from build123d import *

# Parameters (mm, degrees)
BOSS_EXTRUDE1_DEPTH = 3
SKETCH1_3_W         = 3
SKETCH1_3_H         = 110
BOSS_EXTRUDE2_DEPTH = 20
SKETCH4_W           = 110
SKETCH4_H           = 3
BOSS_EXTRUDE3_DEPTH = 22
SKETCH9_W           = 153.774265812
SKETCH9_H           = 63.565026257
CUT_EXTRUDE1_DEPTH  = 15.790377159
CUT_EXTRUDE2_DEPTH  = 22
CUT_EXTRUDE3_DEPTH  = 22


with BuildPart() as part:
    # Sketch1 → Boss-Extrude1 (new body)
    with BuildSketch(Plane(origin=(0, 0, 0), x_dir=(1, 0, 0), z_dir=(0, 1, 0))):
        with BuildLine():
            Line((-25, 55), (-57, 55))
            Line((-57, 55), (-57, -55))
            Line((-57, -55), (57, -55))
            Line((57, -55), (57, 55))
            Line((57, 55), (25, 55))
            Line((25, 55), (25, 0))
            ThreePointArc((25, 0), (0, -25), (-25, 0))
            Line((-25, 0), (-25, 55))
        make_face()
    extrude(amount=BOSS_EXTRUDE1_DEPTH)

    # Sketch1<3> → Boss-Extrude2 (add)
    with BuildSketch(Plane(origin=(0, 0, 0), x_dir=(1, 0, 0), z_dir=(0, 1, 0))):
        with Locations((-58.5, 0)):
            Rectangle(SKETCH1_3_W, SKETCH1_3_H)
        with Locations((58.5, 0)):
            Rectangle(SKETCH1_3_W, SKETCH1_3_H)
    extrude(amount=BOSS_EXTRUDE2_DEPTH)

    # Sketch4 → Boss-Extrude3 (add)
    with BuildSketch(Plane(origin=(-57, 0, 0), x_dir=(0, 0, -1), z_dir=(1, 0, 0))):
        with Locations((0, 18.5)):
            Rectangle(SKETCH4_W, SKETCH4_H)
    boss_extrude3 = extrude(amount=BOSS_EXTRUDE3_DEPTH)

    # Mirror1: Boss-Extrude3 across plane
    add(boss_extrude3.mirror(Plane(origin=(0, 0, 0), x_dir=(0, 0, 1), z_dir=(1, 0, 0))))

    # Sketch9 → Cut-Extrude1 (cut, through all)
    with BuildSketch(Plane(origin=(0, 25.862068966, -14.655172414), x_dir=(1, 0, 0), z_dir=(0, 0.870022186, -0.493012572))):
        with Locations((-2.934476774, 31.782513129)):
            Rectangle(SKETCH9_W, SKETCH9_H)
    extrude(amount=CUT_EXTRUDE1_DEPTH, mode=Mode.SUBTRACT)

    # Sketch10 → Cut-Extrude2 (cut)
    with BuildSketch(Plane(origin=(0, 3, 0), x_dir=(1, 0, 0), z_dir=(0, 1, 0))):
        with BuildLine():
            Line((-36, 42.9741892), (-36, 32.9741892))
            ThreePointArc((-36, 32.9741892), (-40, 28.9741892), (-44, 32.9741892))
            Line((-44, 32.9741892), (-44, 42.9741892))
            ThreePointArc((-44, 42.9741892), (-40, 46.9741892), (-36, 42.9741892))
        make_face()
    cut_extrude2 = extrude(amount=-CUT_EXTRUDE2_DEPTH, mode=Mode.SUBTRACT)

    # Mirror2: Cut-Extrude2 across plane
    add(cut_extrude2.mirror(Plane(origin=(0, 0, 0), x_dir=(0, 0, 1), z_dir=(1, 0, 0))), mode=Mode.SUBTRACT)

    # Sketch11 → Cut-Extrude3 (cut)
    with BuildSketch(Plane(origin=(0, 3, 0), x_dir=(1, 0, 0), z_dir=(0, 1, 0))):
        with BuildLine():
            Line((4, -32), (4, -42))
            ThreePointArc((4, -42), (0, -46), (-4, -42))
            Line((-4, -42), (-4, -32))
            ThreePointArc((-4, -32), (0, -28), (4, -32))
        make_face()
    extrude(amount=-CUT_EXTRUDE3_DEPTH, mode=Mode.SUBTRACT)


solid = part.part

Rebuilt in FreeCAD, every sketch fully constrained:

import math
import FreeCAD as App
import Part
import Sketcher

V = App.Vector

doc = App.newDocument("Part")
params = doc.addObject("Spreadsheet::Sheet", "Params")
for row, (alias, value) in enumerate([
    ("sketch1_radius", "25 mm"),
    ("sketch1_width", "32 mm"),
    ("sketch1_height", "110 mm"),
    ("pad1_length", "3 mm"),
    ("sketch2_width", "3 mm"),
    ("sketch2_height", "110 mm"),
    ("pad2_length", "20 mm"),
    ("sketch3_width", "3 mm"),
    ("sketch3_height", "110 mm"),
    ("pad3_length", "22 mm"),
    ("sketch5_radius", "4 mm"),
    ("sketch5_height", "10 mm"),
    ("pocket2_length", "22 mm"),
    ("sketch6_radius", "4 mm"),
    ("sketch6_height", "10 mm"),
    ("pocket3_length", "22 mm"),
], start=1):
    params.set(f"A{row}", alias)
    params.set(f"B{row}", "=" + value)
    params.setAlias(f"B{row}", alias)

body = doc.addObject("PartDesign::Body", "Body")

# Sketch on XZ plane
sketch1 = body.newObject("Sketcher::SketchObject", "Sketch")
sketch1.AttachmentSupport = (doc.getObject("XZ_Plane"), [""])
sketch1.MapMode = "FlatFace"
sketch1.addGeometry([
    Part.LineSegment(V(-25, -55, 0), V(-57, -55, 0)),  # 0
    Part.LineSegment(V(-57, -55, 0), V(-57, 55, 0)),  # 1
    Part.LineSegment(V(-57, 55, 0), V(57, 55, 0)),  # 2
    Part.LineSegment(V(57, 55, 0), V(57, -55, 0)),  # 3
    Part.LineSegment(V(57, -55, 0), V(25, -55, 0)),  # 4
    Part.LineSegment(V(25, -55, 0), V(25, 0, 0)),  # 5
    Part.ArcOfCircle(Part.Circle(V(0, 0, 0), V(0, 0, 1), 25), math.radians(0), math.radians(180)),  # 6
    Part.LineSegment(V(-25, 0, 0), V(-25, -55, 0)),  # 7
], False)
sketch1.addConstraint([
    Sketcher.Constraint("Coincident", 0, 2, 1, 1),
    Sketcher.Constraint("Coincident", 1, 2, 2, 1),
    Sketcher.Constraint("Coincident", 2, 2, 3, 1),
    Sketcher.Constraint("Coincident", 3, 2, 4, 1),
    Sketcher.Constraint("Coincident", 4, 2, 5, 1),
    Sketcher.Constraint("Tangent", 5, 2, 6, 1),
    Sketcher.Constraint("Tangent", 6, 2, 7, 1),
    Sketcher.Constraint("Coincident", 7, 2, 0, 1),
    Sketcher.Constraint("Horizontal", 0),
    Sketcher.Constraint("Vertical", 1),
    Sketcher.Constraint("Horizontal", 2),
    Sketcher.Constraint("Vertical", 3),
    Sketcher.Constraint("Horizontal", 4),
    Sketcher.Constraint("Vertical", 5),
    Sketcher.Constraint("Vertical", 7),
    Sketcher.Constraint("Coincident", 6, 3, -1, 1),
    Sketcher.Constraint("Symmetric", 0, 2, 2, 2, -1, 1),
    Sketcher.Constraint("Horizontal", 0, 2, 3, 2),
    Sketcher.Constraint("Radius", 6, 25.0),
    Sketcher.Constraint("DistanceX", 0, 2, 0, 1, 32.0),
    Sketcher.Constraint("DistanceY", 1, 1, 1, 2, 110.0),
])
sketch1.setExpression("Constraints[18]", "Params.sketch1_radius")
sketch1.setExpression("Constraints[19]", "Params.sketch1_width")
sketch1.setExpression("Constraints[20]", "Params.sketch1_height")
pad1 = body.newObject("PartDesign::Pad", "Pad")
pad1.Profile = sketch1
pad1.setExpression("Length", "Params.pad1_length")
pad1.Reversed = True

# Sketch on XZ plane
sketch2 = body.newObject("Sketcher::SketchObject", "Sketch001")
sketch2.AttachmentSupport = (doc.getObject("XZ_Plane"), [""])
sketch2.MapMode = "FlatFace"
sketch2.addGeometry([
    Part.LineSegment(V(-60, -55, 0), V(-60, 55, 0)),  # 0
    Part.LineSegment(V(-60, 55, 0), V(-57, 55, 0)),  # 1
    Part.LineSegment(V(-57, 55, 0), V(-57, -55, 0)),  # 2
    Part.LineSegment(V(-57, -55, 0), V(-60, -55, 0)),  # 3
    Part.LineSegment(V(57, -55, 0), V(57, 55, 0)),  # 4
    Part.LineSegment(V(57, 55, 0), V(60, 55, 0)),  # 5
    Part.LineSegment(V(60, 55, 0), V(60, -55, 0)),  # 6
    Part.LineSegment(V(60, -55, 0), V(57, -55, 0)),  # 7
], False)
sketch2.addConstraint([
    Sketcher.Constraint("Coincident", 0, 2, 1, 1),
    Sketcher.Constraint("Coincident", 1, 2, 2, 1),
    Sketcher.Constraint("Coincident", 2, 2, 3, 1),
    Sketcher.Constraint("Coincident", 3, 2, 0, 1),
    Sketcher.Constraint("Coincident", 4, 2, 5, 1),
    Sketcher.Constraint("Coincident", 5, 2, 6, 1),
    Sketcher.Constraint("Coincident", 6, 2, 7, 1),
    Sketcher.Constraint("Coincident", 7, 2, 4, 1),
    Sketcher.Constraint("Vertical", 0),
    Sketcher.Constraint("Horizontal", 1),
    Sketcher.Constraint("Vertical", 2),
    Sketcher.Constraint("Horizontal", 3),
    Sketcher.Constraint("Vertical", 4),
    Sketcher.Constraint("Horizontal", 5),
    Sketcher.Constraint("Vertical", 6),
    Sketcher.Constraint("Horizontal", 7),
    Sketcher.Constraint("Symmetric", 2, 2, 4, 2, -1, 1),
    Sketcher.Constraint("Symmetric", 0, 2, 6, 2, -1, 1),
    Sketcher.Constraint("Horizontal", 1, 2, 4, 2),
    Sketcher.Constraint("DistanceX", 1, 1, 1, 2, 3.0),
    Sketcher.Constraint("DistanceY", 0, 1, 0, 2, 110.0),
    Sketcher.Constraint("DistanceX", 0, 2, -1, 1, 60.0),
])
sketch2.setExpression("Constraints[19]", "Params.sketch2_width")
sketch2.setExpression("Constraints[20]", "Params.sketch2_height")
pad2 = body.newObject("PartDesign::Pad", "Pad001")
pad2.Profile = sketch2
pad2.setExpression("Length", "Params.pad2_length")
pad2.Reversed = True

# Sketch on YZ plane
sketch3 = body.newObject("Sketcher::SketchObject", "Sketch002")
sketch3.AttachmentSupport = (doc.getObject("YZ_Plane"), [""])
sketch3.MapMode = "FlatFace"
sketch3.AttachmentOffset = App.Placement(V(0, 0, -57), App.Rotation())
sketch3.addGeometry([
    Part.LineSegment(V(20, 55, 0), V(17, 55, 0)),
    Part.LineSegment(V(17, 55, 0), V(17, -55, 0)),
    Part.LineSegment(V(17, -55, 0), V(20, -55, 0)),
    Part.LineSegment(V(20, -55, 0), V(20, 55, 0)),
], False)
sketch3.addConstraint([
    Sketcher.Constraint("Coincident", 0, 2, 1, 1),
    Sketcher.Constraint("Coincident", 1, 2, 2, 1),
    Sketcher.Constraint("Coincident", 2, 2, 3, 1),
    Sketcher.Constraint("Coincident", 3, 2, 0, 1),
    Sketcher.Constraint("Horizontal", 0),
    Sketcher.Constraint("Vertical", 1),
    Sketcher.Constraint("Horizontal", 2),
    Sketcher.Constraint("Vertical", 3),
    Sketcher.Constraint("DistanceX", 0, 2, 0, 1, 3.0),
    Sketcher.Constraint("DistanceY", 1, 2, 1, 1, 110.0),
    Sketcher.Constraint("DistanceX", -1, 1, 0, 2, 17.0),
    Sketcher.Constraint("DistanceY", -1, 1, 0, 2, 55.0),
])
sketch3.setExpression("Constraints[8]", "Params.sketch3_width")
sketch3.setExpression("Constraints[9]", "Params.sketch3_height")
pad3 = body.newObject("PartDesign::Pad", "Pad002")
pad3.Profile = sketch3
pad3.setExpression("Length", "Params.pad3_length")
doc.recompute()

mirrored = body.newObject("PartDesign::Mirrored", "Mirrored")
mirrored.Originals = [pad3]
mirrored.MirrorPlane = (doc.getObject("YZ_Plane"), [""])
body.Tip = mirrored

# Sketch on an angled plane
sketch4 = body.newObject("Sketcher::SketchObject", "Sketch003")
sketch4.Placement = App.Placement(V(0, 25.862069, -14.655172), App.Rotation(V(1, 0, 0), V(0, -0.493012572, -0.870022186), V(0, 0.870022186, -0.493012572), "ZXY"))
sketch4.addGeometry([
    Part.LineSegment(V(-80, 64, 0), V(-80, 0, 0)),
    Part.LineSegment(V(-80, 0, 0), V(74, 0, 0)),
    Part.LineSegment(V(74, 0, 0), V(74, 64, 0)),
    Part.LineSegment(V(74, 64, 0), V(-80, 64, 0)),
], False)
sketch4.addConstraint([
    Sketcher.Constraint("Coincident", 0, 2, 1, 1),
    Sketcher.Constraint("Coincident", 1, 2, 2, 1),
    Sketcher.Constraint("Coincident", 2, 2, 3, 1),
    Sketcher.Constraint("Coincident", 3, 2, 0, 1),
    Sketcher.Constraint("Vertical", 0),
    Sketcher.Constraint("Horizontal", 1),
    Sketcher.Constraint("Vertical", 2),
    Sketcher.Constraint("Horizontal", 3),
    Sketcher.Constraint("PointOnObject", 0, 2, -1),
    Sketcher.Constraint("DistanceX", 1, 1, 1, 2, 153.774266),
    Sketcher.Constraint("DistanceY", 0, 2, 0, 1, 63.565026),
    Sketcher.Constraint("DistanceX", 0, 2, -1, 1, 79.82161),
])
pocket1 = body.newObject("PartDesign::Pocket", "Pocket")
pocket1.Profile = sketch4
pocket1.Type = "ThroughAll"
pocket1.Reversed = True

# Sketch on XZ plane
sketch5 = body.newObject("Sketcher::SketchObject", "Sketch004")
sketch5.AttachmentSupport = (doc.getObject("XZ_Plane"), [""])
sketch5.MapMode = "FlatFace"
sketch5.AttachmentOffset = App.Placement(V(0, 0, -3), App.Rotation())
sketch5.addGeometry([
    Part.LineSegment(V(-36, -33, 0), V(-36, -43, 0)),
    Part.ArcOfCircle(Part.Circle(V(-40, -43, 0), V(0, 0, 1), 4), math.radians(180), math.radians(360)),
    Part.LineSegment(V(-44, -43, 0), V(-44, -33, 0)),
    Part.ArcOfCircle(Part.Circle(V(-40, -33, 0), V(0, 0, 1), 4), math.radians(0), math.radians(180)),
], False)
sketch5.addConstraint([
    Sketcher.Constraint("Tangent", 0, 2, 1, 2),
    Sketcher.Constraint("Tangent", 1, 1, 2, 1),
    Sketcher.Constraint("Tangent", 2, 2, 3, 2),
    Sketcher.Constraint("Tangent", 3, 1, 0, 1),
    Sketcher.Constraint("Vertical", 0),
    Sketcher.Constraint("Vertical", 2),
    Sketcher.Constraint("Radius", 1, 4.0),
    Sketcher.Constraint("DistanceY", 0, 2, 0, 1, 10.0),
    Sketcher.Constraint("DistanceX", 1, 3, -1, 1, 40.0),
    Sketcher.Constraint("DistanceY", 1, 3, -1, 1, 42.974189),
])
sketch5.setExpression("Constraints[6]", "Params.sketch5_radius")
sketch5.setExpression("Constraints[7]", "Params.sketch5_height")
pocket2 = body.newObject("PartDesign::Pocket", "Pocket001")
pocket2.Profile = sketch5
pocket2.setExpression("Length", "Params.pocket2_length")
pocket2.Reversed = True
doc.recompute()

mirrored2 = body.newObject("PartDesign::Mirrored", "Mirrored001")
mirrored2.Originals = [pocket2]
mirrored2.MirrorPlane = (doc.getObject("YZ_Plane"), [""])
body.Tip = mirrored2

# Sketch on XZ plane
sketch6 = body.newObject("Sketcher::SketchObject", "Sketch005")
sketch6.AttachmentSupport = (doc.getObject("XZ_Plane"), [""])
sketch6.MapMode = "FlatFace"
sketch6.AttachmentOffset = App.Placement(V(0, 0, -3), App.Rotation())
sketch6.addGeometry([
    Part.LineSegment(V(4, 42, 0), V(4, 32, 0)),
    Part.ArcOfCircle(Part.Circle(V(0, 32, 0), V(0, 0, 1), 4), math.radians(180), math.radians(360)),
    Part.LineSegment(V(-4, 32, 0), V(-4, 42, 0)),
    Part.ArcOfCircle(Part.Circle(V(0, 42, 0), V(0, 0, 1), 4), math.radians(0), math.radians(180)),
], False)
sketch6.addConstraint([
    Sketcher.Constraint("Tangent", 0, 2, 1, 2),
    Sketcher.Constraint("Tangent", 1, 1, 2, 1),
    Sketcher.Constraint("Tangent", 2, 2, 3, 2),
    Sketcher.Constraint("Tangent", 3, 1, 0, 1),
    Sketcher.Constraint("Vertical", 0),
    Sketcher.Constraint("Vertical", 2),
    Sketcher.Constraint("PointOnObject", 1, 3, -2),
    Sketcher.Constraint("Radius", 1, 4.0),
    Sketcher.Constraint("DistanceY", 0, 2, 0, 1, 10.0),
    Sketcher.Constraint("DistanceY", -1, 1, 1, 3, 32.0),
])
sketch6.setExpression("Constraints[7]", "Params.sketch6_radius")
sketch6.setExpression("Constraints[8]", "Params.sketch6_height")
pocket3 = body.newObject("PartDesign::Pocket", "Pocket002")
pocket3.Profile = sketch6
pocket3.setExpression("Length", "Params.pocket3_length")
pocket3.Reversed = True

doc.recompute()
